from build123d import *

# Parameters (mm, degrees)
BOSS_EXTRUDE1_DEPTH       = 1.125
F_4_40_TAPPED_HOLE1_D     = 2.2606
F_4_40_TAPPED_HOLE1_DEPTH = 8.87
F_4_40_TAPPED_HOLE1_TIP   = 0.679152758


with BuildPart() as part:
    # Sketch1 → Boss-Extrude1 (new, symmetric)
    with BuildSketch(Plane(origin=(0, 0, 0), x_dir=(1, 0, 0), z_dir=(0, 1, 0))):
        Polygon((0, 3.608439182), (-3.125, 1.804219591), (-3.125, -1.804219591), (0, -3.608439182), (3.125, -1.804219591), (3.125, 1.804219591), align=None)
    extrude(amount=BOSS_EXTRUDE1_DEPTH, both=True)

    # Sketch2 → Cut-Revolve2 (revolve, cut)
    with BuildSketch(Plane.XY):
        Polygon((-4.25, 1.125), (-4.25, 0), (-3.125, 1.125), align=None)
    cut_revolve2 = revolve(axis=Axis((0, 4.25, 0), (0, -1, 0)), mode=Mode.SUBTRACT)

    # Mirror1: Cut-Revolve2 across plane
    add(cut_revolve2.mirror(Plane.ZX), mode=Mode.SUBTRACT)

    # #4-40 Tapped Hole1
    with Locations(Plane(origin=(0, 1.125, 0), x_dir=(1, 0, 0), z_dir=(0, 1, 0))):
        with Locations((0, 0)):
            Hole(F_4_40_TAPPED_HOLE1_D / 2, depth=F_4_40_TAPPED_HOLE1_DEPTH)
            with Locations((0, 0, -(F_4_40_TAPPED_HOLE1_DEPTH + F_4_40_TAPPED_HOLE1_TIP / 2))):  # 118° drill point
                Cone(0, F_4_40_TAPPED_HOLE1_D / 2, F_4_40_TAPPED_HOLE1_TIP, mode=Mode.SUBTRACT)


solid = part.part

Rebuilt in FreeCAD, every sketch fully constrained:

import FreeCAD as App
import Part
import Sketcher
from FreeCAD import Vector
Q = App.Units.Quantity

doc = App.newDocument("Part")
body = doc.addObject("PartDesign::Body", "Body")

# Sketch on XZ plane
sketch1 = body.newObject("Sketcher::SketchObject", "Sketch")
sketch1.AttachmentSupport = (doc.getObject("XZ_Plane"), [""])
sketch1.MapMode = "FlatFace"
sketch1.addGeometry(Part.LineSegment(Vector(0, -3.6, 0), Vector(-3.1, -1.8, 0)), False)
sketch1.addGeometry(Part.LineSegment(Vector(-3.1, -1.8, 0), Vector(-3.1, 1.8, 0)), False)
sketch1.addGeometry(Part.LineSegment(Vector(-3.1, 1.8, 0), Vector(0, 3.6, 0)), False)
sketch1.addGeometry(Part.LineSegment(Vector(0, 3.6, 0), Vector(3.1, 1.8, 0)), False)
sketch1.addGeometry(Part.LineSegment(Vector(3.1, 1.8, 0), Vector(3.1, -1.8, 0)), False)
sketch1.addGeometry(Part.LineSegment(Vector(3.1, -1.8, 0), Vector(0, -3.6, 0)), False)
sketch1.addConstraint(Sketcher.Constraint("Coincident", 0, 2, 1, 1))
sketch1.addConstraint(Sketcher.Constraint("Coincident", 1, 2, 2, 1))
sketch1.addConstraint(Sketcher.Constraint("Coincident", 2, 2, 3, 1))
sketch1.addConstraint(Sketcher.Constraint("Coincident", 3, 2, 4, 1))
sketch1.addConstraint(Sketcher.Constraint("Coincident", 4, 2, 5, 1))
sketch1.addConstraint(Sketcher.Constraint("Coincident", 5, 2, 0, 1))
sketch1.addConstraint(Sketcher.Constraint("Vertical", 1))
sketch1.addConstraint(Sketcher.Constraint("Vertical", 4))
sketch1.addConstraint(Sketcher.Constraint("Symmetric", 0, 2, 3, 2, -1, 1))
sketch1.addConstraint(Sketcher.Constraint("Symmetric", 2, 2, 5, 2, -1, 1))
sketch1.addConstraint(Sketcher.Constraint("PointOnObject", 2, 2, -2))
sketch1.addConstraint(Sketcher.Constraint("Parallel", 2, 5))
sketch1.addConstraint(Sketcher.Constraint("Horizontal", 1, 2, 3, 2))
sketch1.addConstraint(Sketcher.Constraint("Angle", 0, Q("150 deg")))
sketch1.addConstraint(Sketcher.Constraint("DistanceY", 1, 1, 1, 2, Q("3.608439 mm")))
sketch1.addConstraint(Sketcher.Constraint("DistanceX", 0, 2, -1, 1, Q("3.125 mm")))
pad1 = body.newObject("PartDesign::Pad", "Pad")
pad1.Profile = sketch1
pad1.Length = 2.25
pad1.Midplane = True

# Sketch on XY plane
sketch2 = body.newObject("Sketcher::SketchObject", "Sketch001")
sketch2.AttachmentSupport = (doc.getObject("XY_Plane"), [""])
sketch2.MapMode = "FlatFace"
sketch2.addGeometry(Part.LineSegment(Vector(-4.2, 1.1, 0), Vector(-4.2, 0, 0)), False)
sketch2.addGeometry(Part.LineSegment(Vector(-4.2, 0, 0), Vector(-3.1, 1.1, 0)), False)
sketch2.addGeometry(Part.LineSegment(Vector(-3.1, 1.1, 0), Vector(-4.2, 1.1, 0)), False)
sketch2.addConstraint(Sketcher.Constraint("Coincident", 0, 2, 1, 1))
sketch2.addConstraint(Sketcher.Constraint("Coincident", 1, 2, 2, 1))
sketch2.addConstraint(Sketcher.Constraint("Coincident", 2, 2, 0, 1))
sketch2.addConstraint(Sketcher.Constraint("Vertical", 0))
sketch2.addConstraint(Sketcher.Constraint("Horizontal", 2))
sketch2.addConstraint(Sketcher.Constraint("PointOnObject", 0, 2, -1))
sketch2.addConstraint(Sketcher.Constraint("Equal", 2, 0))
sketch2.addConstraint(Sketcher.Constraint("DistanceX", 2, 2, 2, 1, Q("1.125 mm")))
sketch2.addConstraint(Sketcher.Constraint("DistanceX", 0, 2, -1, 1, Q("4.25 mm")))
groove = body.newObject("PartDesign::Groove", "Groove")
groove.Profile = sketch2
groove.ReferenceAxis = (sketch2, ["V_Axis"])
groove.Angle = 360
doc.recompute()

mirrored = body.newObject("PartDesign::Mirrored", "Mirrored")
mirrored.Originals = [groove]
mirrored.MirrorPlane = (doc.getObject("XZ_Plane"), [""])
body.Tip = mirrored

# Sketch on XZ plane
sketch3 = body.newObject("Sketcher::SketchObject", "Sketch002")
sketch3.AttachmentSupport = (doc.getObject("XZ_Plane"), [""])
sketch3.MapMode = "FlatFace"
sketch3.AttachmentOffset = App.Placement(Vector(0, 0, -1.125), App.Rotation())
sketch3.addGeometry(Part.Circle(Vector(0, 0, 0), Vector(0, 0, 1), 1.1), False)
sketch3.addConstraint(Sketcher.Constraint("Coincident", 0, 3, -1, 1))
sketch3.addConstraint(Sketcher.Constraint("Diameter", 0, Q("0.089 in")))
doc.recompute()
hole = body.newObject("PartDesign::Hole", "Hole")
hole.Profile = sketch3
hole.ThreadType = "None"
hole.Diameter = Q("0.089 in")
hole.DepthType = "Dimension"
hole.Depth = 8.87
hole.DrillPoint = "Angled"
hole.DrillPointAngle = 118
hole.Reversed = True

doc.recompute()
